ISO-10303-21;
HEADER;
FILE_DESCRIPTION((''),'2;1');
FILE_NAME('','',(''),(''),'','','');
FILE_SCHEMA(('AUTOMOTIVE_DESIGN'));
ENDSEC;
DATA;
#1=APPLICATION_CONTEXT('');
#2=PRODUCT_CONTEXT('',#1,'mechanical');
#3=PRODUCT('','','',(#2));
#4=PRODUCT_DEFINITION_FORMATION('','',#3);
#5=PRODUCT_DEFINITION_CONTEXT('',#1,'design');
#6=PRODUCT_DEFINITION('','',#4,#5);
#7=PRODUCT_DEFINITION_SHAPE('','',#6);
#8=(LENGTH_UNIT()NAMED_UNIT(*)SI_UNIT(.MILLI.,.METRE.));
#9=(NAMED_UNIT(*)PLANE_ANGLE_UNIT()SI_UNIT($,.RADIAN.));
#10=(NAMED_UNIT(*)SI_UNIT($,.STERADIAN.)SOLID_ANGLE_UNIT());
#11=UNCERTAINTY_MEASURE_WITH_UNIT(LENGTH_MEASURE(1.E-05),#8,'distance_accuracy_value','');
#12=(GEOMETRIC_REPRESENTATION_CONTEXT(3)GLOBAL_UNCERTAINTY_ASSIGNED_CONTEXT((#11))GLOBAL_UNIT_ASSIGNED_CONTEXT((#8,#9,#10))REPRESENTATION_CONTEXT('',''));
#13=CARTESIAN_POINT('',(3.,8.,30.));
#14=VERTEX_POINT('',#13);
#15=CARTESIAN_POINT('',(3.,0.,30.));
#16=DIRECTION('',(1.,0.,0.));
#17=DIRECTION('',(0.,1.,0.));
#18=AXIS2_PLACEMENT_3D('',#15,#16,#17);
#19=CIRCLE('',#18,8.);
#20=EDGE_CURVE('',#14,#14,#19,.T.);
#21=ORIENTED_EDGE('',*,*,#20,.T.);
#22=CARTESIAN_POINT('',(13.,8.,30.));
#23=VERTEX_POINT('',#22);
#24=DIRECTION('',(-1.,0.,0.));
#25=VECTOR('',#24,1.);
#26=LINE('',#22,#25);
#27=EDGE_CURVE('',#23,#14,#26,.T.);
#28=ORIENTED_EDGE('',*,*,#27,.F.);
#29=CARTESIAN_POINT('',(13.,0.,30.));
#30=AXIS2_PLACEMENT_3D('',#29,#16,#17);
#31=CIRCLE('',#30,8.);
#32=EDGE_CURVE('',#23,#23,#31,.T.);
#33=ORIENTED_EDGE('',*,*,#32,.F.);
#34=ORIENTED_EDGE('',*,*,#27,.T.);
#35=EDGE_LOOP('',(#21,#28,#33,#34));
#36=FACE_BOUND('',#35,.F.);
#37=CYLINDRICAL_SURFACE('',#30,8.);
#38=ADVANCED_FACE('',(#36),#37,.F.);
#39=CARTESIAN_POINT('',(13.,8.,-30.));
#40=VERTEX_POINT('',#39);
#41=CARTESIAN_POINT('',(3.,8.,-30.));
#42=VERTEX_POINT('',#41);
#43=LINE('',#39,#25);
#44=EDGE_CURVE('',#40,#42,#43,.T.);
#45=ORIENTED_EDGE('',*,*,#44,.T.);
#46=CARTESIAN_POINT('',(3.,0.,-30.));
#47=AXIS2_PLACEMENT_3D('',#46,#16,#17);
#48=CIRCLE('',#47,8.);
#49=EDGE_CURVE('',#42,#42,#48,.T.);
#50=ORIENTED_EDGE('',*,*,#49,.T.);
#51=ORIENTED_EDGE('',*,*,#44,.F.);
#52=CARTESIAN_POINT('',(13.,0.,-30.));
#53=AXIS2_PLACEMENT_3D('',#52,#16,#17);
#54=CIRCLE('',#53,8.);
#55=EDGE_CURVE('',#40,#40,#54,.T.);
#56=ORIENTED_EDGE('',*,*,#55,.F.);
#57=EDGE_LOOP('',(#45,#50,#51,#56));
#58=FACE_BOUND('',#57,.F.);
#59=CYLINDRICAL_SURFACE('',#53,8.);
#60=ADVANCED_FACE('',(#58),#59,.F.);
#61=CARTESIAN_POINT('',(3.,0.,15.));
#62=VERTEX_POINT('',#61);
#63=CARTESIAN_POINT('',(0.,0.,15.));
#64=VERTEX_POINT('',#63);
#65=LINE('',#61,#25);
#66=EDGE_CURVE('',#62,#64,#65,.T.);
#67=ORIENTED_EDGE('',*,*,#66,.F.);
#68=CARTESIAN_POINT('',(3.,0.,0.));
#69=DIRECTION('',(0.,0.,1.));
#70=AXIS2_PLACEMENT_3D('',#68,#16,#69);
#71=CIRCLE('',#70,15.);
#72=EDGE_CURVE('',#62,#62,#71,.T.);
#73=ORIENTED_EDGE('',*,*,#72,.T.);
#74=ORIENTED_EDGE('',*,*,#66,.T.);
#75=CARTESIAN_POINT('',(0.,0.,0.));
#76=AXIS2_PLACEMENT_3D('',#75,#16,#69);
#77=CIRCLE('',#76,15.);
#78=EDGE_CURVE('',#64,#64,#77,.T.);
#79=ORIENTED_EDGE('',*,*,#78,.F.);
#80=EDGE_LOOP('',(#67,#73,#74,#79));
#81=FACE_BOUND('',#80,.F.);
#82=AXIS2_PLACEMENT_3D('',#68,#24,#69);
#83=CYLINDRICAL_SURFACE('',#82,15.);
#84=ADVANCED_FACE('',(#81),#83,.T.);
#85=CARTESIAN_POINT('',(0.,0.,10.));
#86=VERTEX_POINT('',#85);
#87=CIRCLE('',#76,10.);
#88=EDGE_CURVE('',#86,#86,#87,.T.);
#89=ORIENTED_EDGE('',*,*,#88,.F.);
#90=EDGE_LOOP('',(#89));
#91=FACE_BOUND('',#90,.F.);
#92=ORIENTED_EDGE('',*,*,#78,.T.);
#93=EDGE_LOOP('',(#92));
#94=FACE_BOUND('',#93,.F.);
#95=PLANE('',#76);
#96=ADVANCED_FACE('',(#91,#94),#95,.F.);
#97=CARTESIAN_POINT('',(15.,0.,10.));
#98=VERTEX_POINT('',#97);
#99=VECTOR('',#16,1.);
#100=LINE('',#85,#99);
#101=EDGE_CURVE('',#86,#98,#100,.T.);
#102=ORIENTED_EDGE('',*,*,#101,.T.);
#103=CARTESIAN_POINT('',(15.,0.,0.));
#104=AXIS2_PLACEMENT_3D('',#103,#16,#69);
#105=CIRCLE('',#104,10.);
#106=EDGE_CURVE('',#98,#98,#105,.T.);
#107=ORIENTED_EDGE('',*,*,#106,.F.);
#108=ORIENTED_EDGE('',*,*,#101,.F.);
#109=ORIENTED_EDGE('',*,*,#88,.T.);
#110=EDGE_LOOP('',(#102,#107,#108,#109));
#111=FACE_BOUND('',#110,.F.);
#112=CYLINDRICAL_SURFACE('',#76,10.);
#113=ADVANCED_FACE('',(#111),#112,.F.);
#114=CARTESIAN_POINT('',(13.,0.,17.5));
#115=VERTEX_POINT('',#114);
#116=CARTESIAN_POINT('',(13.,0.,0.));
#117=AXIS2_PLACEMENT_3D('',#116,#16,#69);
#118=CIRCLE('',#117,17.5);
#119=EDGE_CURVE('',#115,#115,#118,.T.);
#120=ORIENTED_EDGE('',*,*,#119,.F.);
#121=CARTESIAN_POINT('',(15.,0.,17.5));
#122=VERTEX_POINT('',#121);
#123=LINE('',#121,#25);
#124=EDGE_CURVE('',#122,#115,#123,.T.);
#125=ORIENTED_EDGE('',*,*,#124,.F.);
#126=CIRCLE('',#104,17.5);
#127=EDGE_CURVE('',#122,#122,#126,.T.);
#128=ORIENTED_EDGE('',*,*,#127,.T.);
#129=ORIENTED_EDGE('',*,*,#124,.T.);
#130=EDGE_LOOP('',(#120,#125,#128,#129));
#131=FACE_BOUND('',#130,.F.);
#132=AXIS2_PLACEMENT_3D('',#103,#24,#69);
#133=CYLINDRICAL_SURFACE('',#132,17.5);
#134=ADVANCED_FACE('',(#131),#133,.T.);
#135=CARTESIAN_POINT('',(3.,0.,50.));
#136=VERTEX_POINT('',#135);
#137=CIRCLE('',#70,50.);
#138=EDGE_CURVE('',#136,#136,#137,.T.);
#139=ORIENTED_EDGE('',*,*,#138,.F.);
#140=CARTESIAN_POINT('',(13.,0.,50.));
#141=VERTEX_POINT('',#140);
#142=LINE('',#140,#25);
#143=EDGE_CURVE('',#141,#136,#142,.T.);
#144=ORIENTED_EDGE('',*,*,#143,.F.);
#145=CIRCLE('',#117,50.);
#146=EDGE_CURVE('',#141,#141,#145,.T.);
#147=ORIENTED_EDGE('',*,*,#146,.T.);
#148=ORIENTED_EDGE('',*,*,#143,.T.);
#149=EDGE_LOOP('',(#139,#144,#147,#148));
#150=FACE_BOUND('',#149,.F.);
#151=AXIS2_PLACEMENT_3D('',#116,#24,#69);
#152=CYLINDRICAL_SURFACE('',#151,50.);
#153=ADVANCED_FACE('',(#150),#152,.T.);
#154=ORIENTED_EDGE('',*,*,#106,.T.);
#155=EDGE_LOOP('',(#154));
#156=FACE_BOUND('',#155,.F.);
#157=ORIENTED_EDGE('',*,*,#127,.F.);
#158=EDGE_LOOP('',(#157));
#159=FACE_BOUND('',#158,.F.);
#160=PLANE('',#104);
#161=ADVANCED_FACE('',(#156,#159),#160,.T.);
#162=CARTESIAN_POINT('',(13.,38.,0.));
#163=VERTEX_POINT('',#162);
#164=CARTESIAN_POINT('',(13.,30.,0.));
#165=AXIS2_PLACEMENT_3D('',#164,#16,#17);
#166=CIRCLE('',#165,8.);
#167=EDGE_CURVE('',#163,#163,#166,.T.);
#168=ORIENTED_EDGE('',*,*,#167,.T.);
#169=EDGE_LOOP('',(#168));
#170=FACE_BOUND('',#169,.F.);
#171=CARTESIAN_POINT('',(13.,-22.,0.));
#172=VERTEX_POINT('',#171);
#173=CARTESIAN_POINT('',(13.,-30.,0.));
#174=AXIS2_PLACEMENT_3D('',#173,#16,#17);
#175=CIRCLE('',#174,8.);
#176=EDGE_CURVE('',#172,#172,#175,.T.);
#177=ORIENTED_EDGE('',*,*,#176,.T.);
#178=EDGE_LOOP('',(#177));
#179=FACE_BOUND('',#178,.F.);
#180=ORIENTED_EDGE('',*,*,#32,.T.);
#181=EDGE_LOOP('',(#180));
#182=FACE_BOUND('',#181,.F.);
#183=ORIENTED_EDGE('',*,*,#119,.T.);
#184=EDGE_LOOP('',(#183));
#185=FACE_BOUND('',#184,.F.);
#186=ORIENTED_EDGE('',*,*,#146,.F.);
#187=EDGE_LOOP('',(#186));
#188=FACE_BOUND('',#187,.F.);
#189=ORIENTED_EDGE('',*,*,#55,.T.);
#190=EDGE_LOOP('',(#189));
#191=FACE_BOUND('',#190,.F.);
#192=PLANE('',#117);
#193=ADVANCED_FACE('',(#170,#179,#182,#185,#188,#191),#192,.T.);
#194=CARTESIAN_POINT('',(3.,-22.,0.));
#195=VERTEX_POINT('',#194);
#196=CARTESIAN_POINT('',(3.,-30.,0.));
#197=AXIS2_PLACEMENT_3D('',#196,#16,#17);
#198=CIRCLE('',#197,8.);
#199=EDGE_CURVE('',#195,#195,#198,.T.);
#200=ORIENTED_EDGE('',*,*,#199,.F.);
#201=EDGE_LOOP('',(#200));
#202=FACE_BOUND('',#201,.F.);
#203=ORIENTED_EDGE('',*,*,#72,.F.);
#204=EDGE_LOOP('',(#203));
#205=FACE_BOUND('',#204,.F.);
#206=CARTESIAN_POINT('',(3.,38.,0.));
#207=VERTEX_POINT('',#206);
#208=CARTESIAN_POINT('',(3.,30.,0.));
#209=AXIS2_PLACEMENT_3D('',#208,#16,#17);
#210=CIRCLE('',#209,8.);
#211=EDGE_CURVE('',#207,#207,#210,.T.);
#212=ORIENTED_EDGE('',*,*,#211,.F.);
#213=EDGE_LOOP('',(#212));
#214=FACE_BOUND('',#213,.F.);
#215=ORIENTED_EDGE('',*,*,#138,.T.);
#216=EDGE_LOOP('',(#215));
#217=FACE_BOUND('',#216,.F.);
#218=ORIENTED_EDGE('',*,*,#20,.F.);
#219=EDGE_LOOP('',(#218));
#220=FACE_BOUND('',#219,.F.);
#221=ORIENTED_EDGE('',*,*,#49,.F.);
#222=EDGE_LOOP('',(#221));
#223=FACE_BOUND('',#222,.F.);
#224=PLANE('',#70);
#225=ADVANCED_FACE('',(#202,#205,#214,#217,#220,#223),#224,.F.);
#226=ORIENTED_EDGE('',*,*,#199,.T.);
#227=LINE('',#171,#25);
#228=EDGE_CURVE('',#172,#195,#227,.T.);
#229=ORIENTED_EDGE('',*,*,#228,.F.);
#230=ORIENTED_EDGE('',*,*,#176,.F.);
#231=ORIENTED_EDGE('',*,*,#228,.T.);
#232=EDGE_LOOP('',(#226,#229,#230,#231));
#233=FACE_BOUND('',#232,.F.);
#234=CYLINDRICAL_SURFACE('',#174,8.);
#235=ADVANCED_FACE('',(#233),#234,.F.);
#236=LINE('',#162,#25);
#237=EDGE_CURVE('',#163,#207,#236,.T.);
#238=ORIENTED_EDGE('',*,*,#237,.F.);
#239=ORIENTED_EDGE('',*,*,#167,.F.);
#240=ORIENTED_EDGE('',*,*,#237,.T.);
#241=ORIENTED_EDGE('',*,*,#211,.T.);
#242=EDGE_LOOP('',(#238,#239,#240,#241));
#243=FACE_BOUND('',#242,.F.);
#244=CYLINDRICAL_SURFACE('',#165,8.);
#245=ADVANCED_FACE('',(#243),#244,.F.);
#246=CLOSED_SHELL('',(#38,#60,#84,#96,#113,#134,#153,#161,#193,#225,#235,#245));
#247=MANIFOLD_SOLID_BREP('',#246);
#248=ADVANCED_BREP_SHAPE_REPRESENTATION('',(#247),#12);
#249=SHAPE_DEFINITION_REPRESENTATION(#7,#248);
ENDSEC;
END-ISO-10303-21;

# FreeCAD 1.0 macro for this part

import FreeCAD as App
import Part
import Sketcher

V = App.Vector

doc = App.newDocument("Part")
params = doc.addObject("Spreadsheet::Sheet", "Params")
for row, (alias, value) in enumerate([
    ("sketch1_width", "15 mm"),
    ("sketch1_width2", "2 mm"),
    ("sketch1_width3", "10 mm"),
    ("sketch1_height", "5 mm"),
    ("sketch1_height2", "35 mm"),
    ("revolution_angle", "360 deg"),
    ("sketch2_diameter", "16 mm"),
], start=1):
    params.set(f"A{row}", alias)
    params.set(f"B{row}", "=" + value)
    params.setAlias(f"B{row}", alias)

body = doc.addObject("PartDesign::Body", "Body")

sketch1 = doc.addObject("Sketcher::SketchObject", "Sketch")
body.addObject(sketch1)
sketch1.AttachmentSupport = (doc.XZ_Plane, [""])
sketch1.MapMode = "FlatFace"
sketch1.addGeometry([
    Part.LineSegment(V(0, 15, 0), V(0, 10, 0)),
    Part.LineSegment(V(0, 10, 0), V(15, 10, 0)),
    Part.LineSegment(V(15, 10, 0), V(15, 17.5, 0)),
    Part.LineSegment(V(15, 17.5, 0), V(13, 17.5, 0)),
    Part.LineSegment(V(13, 17.5, 0), V(13, 50, 0)),
    Part.LineSegment(V(13, 50, 0), V(3, 50, 0)),
    Part.LineSegment(V(3, 50, 0), V(3, 15, 0)),
    Part.LineSegment(V(3, 15, 0), V(0, 15, 0)),
], False)
sketch1.addConstraint([
    Sketcher.Constraint("Coincident", 0, 2, 1, 1),
    Sketcher.Constraint("Coincident", 1, 2, 2, 1),
    Sketcher.Constraint("Coincident", 2, 2, 3, 1),
    Sketcher.Constraint("Coincident", 3, 2, 4, 1),
    Sketcher.Constraint("Coincident", 4, 2, 5, 1),
    Sketcher.Constraint("Coincident", 5, 2, 6, 1),
    Sketcher.Constraint("Coincident", 6, 2, 7, 1),
    Sketcher.Constraint("Coincident", 7, 2, 0, 1),
    Sketcher.Constraint("Vertical", 0),
    Sketcher.Constraint("Horizontal", 1),
    Sketcher.Constraint("Vertical", 2),
    Sketcher.Constraint("Horizontal", 3),
    Sketcher.Constraint("Vertical", 4),
    Sketcher.Constraint("Horizontal", 5),
    Sketcher.Constraint("Vertical", 6),
    Sketcher.Constraint("Horizontal", 7),
    Sketcher.Constraint("PointOnObject", 0, 2, -2),
    Sketcher.Constraint("DistanceX", 1, 1, 1, 2, 15.0),
    Sketcher.Constraint("DistanceX", 3, 2, 3, 1, 2.0),
    Sketcher.Constraint("DistanceX", 5, 2, 5, 1, 10.0),
    Sketcher.Constraint("DistanceY", 0, 2, 0, 1, 5.0),
    Sketcher.Constraint("DistanceY", 6, 2, 6, 1, 35.0),
    Sketcher.Constraint("DistanceY", 2, 1, 2, 2, 7.5),
    Sketcher.Constraint("DistanceY", -1, 1, 0, 2, 10.0),
])
sketch1.setExpression("Constraints[17]", "Params.sketch1_width")
sketch1.setExpression("Constraints[18]", "Params.sketch1_width2")
sketch1.setExpression("Constraints[19]", "Params.sketch1_width3")
sketch1.setExpression("Constraints[20]", "Params.sketch1_height")
sketch1.setExpression("Constraints[21]", "Params.sketch1_height2")
revolution = doc.addObject("PartDesign::Revolution", "Revolution")
body.addObject(revolution)
revolution.Profile = sketch1
revolution.ReferenceAxis = (sketch1, ["H_Axis"])
revolution.setExpression("Angle", "Params.revolution_angle")

sketch2 = doc.addObject("Sketcher::SketchObject", "Sketch001")
body.addObject(sketch2)
sketch2.AttachmentSupport = (doc.YZ_Plane, [""])
sketch2.MapMode = "FlatFace"
sketch2.AttachmentOffset = App.Placement(V(0, 0, 13), App.Rotation())
sketch2.addGeometry([
    Part.Circle(V(0, 30, 0), V(0, 0, 1), 8),
    Part.Circle(V(-30, 0, 0), V(0, 0, 1), 8),
    Part.Circle(V(0, -30, 0), V(0, 0, 1), 8),
    Part.Circle(V(30, 0, 0), V(0, 0, 1), 8),
], False)
sketch2.addConstraint([
    Sketcher.Constraint("Equal", 0, 1),
    Sketcher.Constraint("Equal", 1, 2),
    Sketcher.Constraint("Equal", 2, 3),
    Sketcher.Constraint("Symmetric", 0, 3, 2, 3, -1, 1),
    Sketcher.Constraint("Symmetric", 1, 3, 3, 3, -1, 1),
    Sketcher.Constraint("PointOnObject", 0, 3, -2),
    Sketcher.Constraint("PointOnObject", 1, 3, -1),
    Sketcher.Constraint("Diameter", 0, 16.0),
    Sketcher.Constraint("DistanceY", -1, 1, 0, 3, 30.0),
    Sketcher.Constraint("DistanceX", 1, 3, -1, 1, 30.0),
])
sketch2.setExpression("Constraints[7]", "Params.sketch2_diameter")
pocket1 = doc.addObject("PartDesign::Pocket", "Pocket")
body.addObject(pocket1)
pocket1.Profile = sketch2
pocket1.Type = "ThroughAll"

doc.recompute()
